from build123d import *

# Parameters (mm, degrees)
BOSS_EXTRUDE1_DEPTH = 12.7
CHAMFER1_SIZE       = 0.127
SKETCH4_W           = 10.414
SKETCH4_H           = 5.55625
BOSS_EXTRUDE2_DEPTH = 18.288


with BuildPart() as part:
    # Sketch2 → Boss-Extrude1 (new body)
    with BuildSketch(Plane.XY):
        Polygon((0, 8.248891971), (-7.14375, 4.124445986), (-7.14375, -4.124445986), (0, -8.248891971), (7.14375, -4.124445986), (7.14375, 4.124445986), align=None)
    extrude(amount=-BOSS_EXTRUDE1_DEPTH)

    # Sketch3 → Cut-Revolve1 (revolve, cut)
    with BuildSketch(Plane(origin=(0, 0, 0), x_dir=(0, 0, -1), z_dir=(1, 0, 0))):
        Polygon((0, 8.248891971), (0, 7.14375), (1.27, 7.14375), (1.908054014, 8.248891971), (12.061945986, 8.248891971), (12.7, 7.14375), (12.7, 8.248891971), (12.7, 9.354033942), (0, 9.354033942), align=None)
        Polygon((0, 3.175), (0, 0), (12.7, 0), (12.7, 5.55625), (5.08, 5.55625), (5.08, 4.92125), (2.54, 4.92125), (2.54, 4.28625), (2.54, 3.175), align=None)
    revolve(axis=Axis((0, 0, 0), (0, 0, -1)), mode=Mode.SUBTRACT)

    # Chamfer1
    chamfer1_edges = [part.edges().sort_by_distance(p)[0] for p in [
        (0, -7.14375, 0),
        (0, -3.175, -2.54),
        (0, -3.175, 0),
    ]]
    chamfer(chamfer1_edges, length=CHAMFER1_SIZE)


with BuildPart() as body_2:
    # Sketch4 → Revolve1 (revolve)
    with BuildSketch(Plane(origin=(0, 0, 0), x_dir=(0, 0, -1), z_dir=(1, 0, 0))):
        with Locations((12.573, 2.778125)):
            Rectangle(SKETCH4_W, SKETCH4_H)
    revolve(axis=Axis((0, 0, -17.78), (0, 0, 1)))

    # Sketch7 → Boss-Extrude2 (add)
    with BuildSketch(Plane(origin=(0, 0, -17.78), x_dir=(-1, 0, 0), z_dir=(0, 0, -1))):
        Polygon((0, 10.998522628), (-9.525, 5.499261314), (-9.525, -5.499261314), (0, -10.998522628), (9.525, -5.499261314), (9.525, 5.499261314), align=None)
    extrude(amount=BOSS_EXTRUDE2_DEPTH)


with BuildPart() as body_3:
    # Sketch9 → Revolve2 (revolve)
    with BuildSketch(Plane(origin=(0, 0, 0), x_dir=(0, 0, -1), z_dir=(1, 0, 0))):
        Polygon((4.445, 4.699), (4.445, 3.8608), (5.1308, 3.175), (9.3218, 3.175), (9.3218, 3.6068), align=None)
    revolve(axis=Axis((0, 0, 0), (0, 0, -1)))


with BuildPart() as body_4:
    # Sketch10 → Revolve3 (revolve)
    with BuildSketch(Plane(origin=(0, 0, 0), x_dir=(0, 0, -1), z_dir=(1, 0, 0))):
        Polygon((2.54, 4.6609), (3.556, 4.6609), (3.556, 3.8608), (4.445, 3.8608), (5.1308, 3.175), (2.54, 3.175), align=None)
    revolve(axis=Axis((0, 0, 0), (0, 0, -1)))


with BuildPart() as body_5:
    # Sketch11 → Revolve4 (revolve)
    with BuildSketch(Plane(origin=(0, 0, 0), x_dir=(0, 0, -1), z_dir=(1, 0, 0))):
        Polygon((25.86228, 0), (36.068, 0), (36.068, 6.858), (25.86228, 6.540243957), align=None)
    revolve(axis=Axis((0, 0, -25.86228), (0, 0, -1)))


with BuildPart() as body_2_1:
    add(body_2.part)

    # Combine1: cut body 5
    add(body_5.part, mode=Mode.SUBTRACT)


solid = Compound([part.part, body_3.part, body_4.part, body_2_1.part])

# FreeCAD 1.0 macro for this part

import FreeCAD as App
import Part
import Sketcher

V = App.Vector
Q = App.Units.Quantity


def edges_at(feature, points):
    """Names of the edges that pass closest to the given points."""
    edges = feature.Shape.Edges
    near = lambda p: min(range(len(edges)), key=lambda i: edges[i].distToShape(Part.Vertex(*p))[0])
    return sorted({f"Edge{near(p) + 1}" for p in points})

doc = App.newDocument("Part")
body = doc.addObject("PartDesign::Body", "Body")

# Sketch on XY plane
sketch1 = body.newObject("Sketcher::SketchObject", "Sketch")
sketch1.AttachmentSupport = (doc.getObject("XY_Plane"), [""])
sketch1.MapMode = "FlatFace"
sketch1.addGeometry([
    Part.LineSegment(V(0, 8.248892, 0), V(-7.14375, 4.124446, 0)),  # 0
    Part.LineSegment(V(-7.14375, 4.124446, 0), V(-7.14375, -4.124446, 0)),  # 1
    Part.LineSegment(V(-7.14375, -4.124446, 0), V(0, -8.248892, 0)),  # 2
    Part.LineSegment(V(0, -8.248892, 0), V(7.14375, -4.124446, 0)),  # 3
    Part.LineSegment(V(7.14375, -4.124446, 0), V(7.14375, 4.124446, 0)),  # 4
    Part.LineSegment(V(7.14375, 4.124446, 0), V(0, 8.248892, 0)),  # 5
], False)
sketch1.addConstraint([
    Sketcher.Constraint("Coincident", 0, 2, 1, 1),
    Sketcher.Constraint("Coincident", 1, 2, 2, 1),
    Sketcher.Constraint("Coincident", 2, 2, 3, 1),
    Sketcher.Constraint("Coincident", 3, 2, 4, 1),
    Sketcher.Constraint("Coincident", 4, 2, 5, 1),
    Sketcher.Constraint("Coincident", 5, 2, 0, 1),
    Sketcher.Constraint("Vertical", 1),
    Sketcher.Constraint("Vertical", 4),
    Sketcher.Constraint("Symmetric", 0, 2, 3, 2, -1, 1),
    Sketcher.Constraint("Symmetric", 2, 2, 5, 2, -1, 1),
    Sketcher.Constraint("PointOnObject", 2, 2, -2),
    Sketcher.Constraint("Parallel", 2, 5),
    Sketcher.Constraint("Horizontal", 1, 2, 3, 2),
    Sketcher.Constraint("Angle", 0, Q("-150 deg")),
    Sketcher.Constraint("DistanceX", 0, 2, -1, 1, Q("0.28125 in")),
    Sketcher.Constraint("DistanceY", 1, 2, 1, 1, Q("8.248892 mm")),
])
pad1 = body.newObject("PartDesign::Pad", "Pad")
pad1.Profile = sketch1
pad1.Length = Q("0.5 in")
pad1.Reversed = True

# Sketch on YZ plane
sketch2 = body.newObject("Sketcher::SketchObject", "Sketch001")
sketch2.AttachmentSupport = (doc.getObject("YZ_Plane"), [""])
sketch2.MapMode = "FlatFace"
sketch2.addGeometry([
    Part.LineSegment(V(7.14375, 0, 0), V(7.14375, -1.27, 0)),  # 0
    Part.LineSegment(V(7.14375, -1.27, 0), V(8.248892, -1.908054, 0)),  # 1
    Part.LineSegment(V(8.248892, -1.908054, 0), V(8.248892, -12.061946, 0)),  # 2
    Part.LineSegment(V(8.248892, -12.061946, 0), V(7.14375, -12.7, 0)),  # 3
    Part.LineSegment(V(7.14375, -12.7, 0), V(9.354034, -12.7, 0)),  # 4
    Part.LineSegment(V(9.354034, -12.7, 0), V(9.354034, 0, 0)),  # 5
    Part.LineSegment(V(9.354034, 0, 0), V(7.14375, 0, 0)),  # 6
    Part.LineSegment(V(3.175, 0, 0), V(0, 0, 0)),  # 7
    Part.LineSegment(V(0, 0, 0), V(0, -12.7, 0)),  # 8
    Part.LineSegment(V(0, -12.7, 0), V(5.55625, -12.7, 0)),  # 9
    Part.LineSegment(V(5.55625, -12.7, 0), V(5.55625, -5.08, 0)),  # 10
    Part.LineSegment(V(5.55625, -5.08, 0), V(4.92125, -5.08, 0)),  # 11
    Part.LineSegment(V(4.92125, -5.08, 0), V(4.92125, -2.54, 0)),  # 12
    Part.LineSegment(V(4.92125, -2.54, 0), V(3.175, -2.54, 0)),  # 13
    Part.LineSegment(V(3.175, -2.54, 0), V(3.175, 0, 0)),  # 14
], False)
sketch2.addConstraint([
    Sketcher.Constraint("Coincident", 0, 2, 1, 1),
    Sketcher.Constraint("Coincident", 1, 2, 2, 1),
    Sketcher.Constraint("Coincident", 2, 2, 3, 1),
    Sketcher.Constraint("Coincident", 3, 2, 4, 1),
    Sketcher.Constraint("Coincident", 4, 2, 5, 1),
    Sketcher.Constraint("Coincident", 5, 2, 6, 1),
    Sketcher.Constraint("Coincident", 6, 2, 0, 1),
    Sketcher.Constraint("Coincident", 7, 2, 8, 1),
    Sketcher.Constraint("Coincident", 8, 2, 9, 1),
    Sketcher.Constraint("Coincident", 9, 2, 10, 1),
    Sketcher.Constraint("Coincident", 10, 2, 11, 1),
    Sketcher.Constraint("Coincident", 11, 2, 12, 1),
    Sketcher.Constraint("Coincident", 12, 2, 13, 1),
    Sketcher.Constraint("Coincident", 13, 2, 14, 1),
    Sketcher.Constraint("Coincident", 14, 2, 7, 1),
    Sketcher.Constraint("Vertical", 0),
    Sketcher.Constraint("Vertical", 2),
    Sketcher.Constraint("Horizontal", 4),
    Sketcher.Constraint("Vertical", 5),
    Sketcher.Constraint("Horizontal", 6),
    Sketcher.Constraint("Horizontal", 7),
    Sketcher.Constraint("Vertical", 8),
    Sketcher.Constraint("Horizontal", 9),
    Sketcher.Constraint("Vertical", 10),
    Sketcher.Constraint("Horizontal", 11),
    Sketcher.Constraint("Vertical", 12),
    Sketcher.Constraint("Horizontal", 13),
    Sketcher.Constraint("Vertical", 14),
    Sketcher.Constraint("Coincident", 7, 2, -1, 1),
    Sketcher.Constraint("PointOnObject", 5, 2, -1),
    Sketcher.Constraint("Horizontal", 4, 2, 8, 2),
    Sketcher.Constraint("Vertical", 0, 2, 3, 2),
    Sketcher.Constraint("Equal", 12, 14),
    Sketcher.Constraint("Equal", 1, 3),
    Sketcher.Constraint("DistanceY", 5, 1, 5, 2, Q("0.5 in")),
    Sketcher.Constraint("DistanceY", 10, 1, 10, 2, Q("0.3 in")),
    Sketcher.Constraint("Angle", 1, Q("-30 deg")),
    Sketcher.Constraint("DistanceY", 0, 2, 0, 1, Q("0.05 in")),
    Sketcher.Constraint("DistanceX", 7, 2, 7, 1, Q("0.125 in")),
    Sketcher.Constraint("DistanceX", 9, 1, 9, 2, Q("0.21875 in")),
    Sketcher.Constraint("DistanceX", 11, 2, 11, 1, Q("0.025 in")),
    Sketcher.Constraint("DistanceX", -1, 1, 0, 2, Q("0.28125 in")),
    Sketcher.Constraint("DistanceY", 2, 2, 2, 1, Q("10.153892 mm")),
    Sketcher.Constraint("DistanceX", 4, 1, 4, 2, Q("2.210284 mm")),
])
groove = body.newObject("PartDesign::Groove", "Groove")
groove.Profile = sketch2
groove.ReferenceAxis = (sketch2, ["V_Axis"])
groove.Angle = 360
doc.recompute()

chamfer = body.newObject("PartDesign::Chamfer", "Chamfer")
chamfer.Base = (groove, edges_at(groove, [(0, -7.144, 0), (0, -3.175, -2.54), (0, -3.175, 0)]))
chamfer.Size = Q("0.005 in")
body2 = doc.addObject("PartDesign::Body", "Body001")

# Sketch on YZ plane
sketch3 = body2.newObject("Sketcher::SketchObject", "Sketch002")
sketch3.AttachmentSupport = (doc.getObject("YZ_Plane001"), [""])
sketch3.MapMode = "FlatFace"
sketch3.addGeometry([
    Part.LineSegment(V(5.55625, -7.366, 0), V(0, -7.366, 0)),
    Part.LineSegment(V(0, -7.366, 0), V(0, -17.78, 0)),
    Part.LineSegment(V(0, -17.78, 0), V(5.55625, -17.78, 0)),
    Part.LineSegment(V(5.55625, -17.78, 0), V(5.55625, -7.366, 0)),
], False)
sketch3.addConstraint([
    Sketcher.Constraint("Coincident", 0, 2, 1, 1),
    Sketcher.Constraint("Coincident", 1, 2, 2, 1),
    Sketcher.Constraint("Coincident", 2, 2, 3, 1),
    Sketcher.Constraint("Coincident", 3, 2, 0, 1),
    Sketcher.Constraint("Horizontal", 0),
    Sketcher.Constraint("Vertical", 1),
    Sketcher.Constraint("Horizontal", 2),
    Sketcher.Constraint("Vertical", 3),
    Sketcher.Constraint("PointOnObject", 0, 2, -2),
    Sketcher.Constraint("DistanceY", 1, 2, 1, 1, Q("0.41 in")),
    Sketcher.Constraint("DistanceY", 1, 2, -1, 1, Q("0.7 in")),
    Sketcher.Constraint("DistanceX", 0, 2, 0, 1, Q("0.21875 in")),
])
revolution = body2.newObject("PartDesign::Revolution", "Revolution")
revolution.Profile = sketch3
revolution.ReferenceAxis = (sketch3, ["V_Axis"])
revolution.Angle = 360

# Sketch on XY plane
sketch4 = body2.newObject("Sketcher::SketchObject", "Sketch003")
sketch4.AttachmentSupport = (doc.getObject("XY_Plane001"), [""])
sketch4.MapMode = "FlatFace"
sketch4.AttachmentOffset = App.Placement(V(0, 0, -0.7 * 25.4), App.Rotation())
sketch4.addGeometry([
    Part.LineSegment(V(0, 10.998523, 0), V(9.525, 5.499261, 0)),  # 0
    Part.LineSegment(V(9.525, 5.499261, 0), V(9.525, -5.499261, 0)),  # 1
    Part.LineSegment(V(9.525, -5.499261, 0), V(0, -10.998523, 0)),  # 2
    Part.LineSegment(V(0, -10.998523, 0), V(-9.525, -5.499261, 0)),  # 3
    Part.LineSegment(V(-9.525, -5.499261, 0), V(-9.525, 5.499261, 0)),  # 4
    Part.LineSegment(V(-9.525, 5.499261, 0), V(0, 10.998523, 0)),  # 5
], False)
sketch4.addConstraint([
    Sketcher.Constraint("Coincident", 0, 2, 1, 1),
    Sketcher.Constraint("Coincident", 1, 2, 2, 1),
    Sketcher.Constraint("Coincident", 2, 2, 3, 1),
    Sketcher.Constraint("Coincident", 3, 2, 4, 1),
    Sketcher.Constraint("Coincident", 4, 2, 5, 1),
    Sketcher.Constraint("Coincident", 5, 2, 0, 1),
    Sketcher.Constraint("Vertical", 1),
    Sketcher.Constraint("Vertical", 4),
    Sketcher.Constraint("Symmetric", 0, 2, 3, 2, -1, 1),
    Sketcher.Constraint("Symmetric", 2, 2, 5, 2, -1, 1),
    Sketcher.Constraint("PointOnObject", 2, 2, -2),
    Sketcher.Constraint("Parallel", 2, 5),
    Sketcher.Constraint("Horizontal", 1, 2, 3, 2),
    Sketcher.Constraint("Angle", 0, Q("-30 deg")),
    Sketcher.Constraint("DistanceX", 3, 2, 1, 2, Q("0.75 in")),
    Sketcher.Constraint("DistanceY", 1, 2, 1, 1, Q("10.998523 mm")),
])
pad2 = body2.newObject("PartDesign::Pad", "Pad001")
pad2.Profile = sketch4
pad2.Length = Q("0.72 in")
pad2.Reversed = True
body3 = doc.addObject("PartDesign::Body", "Body002")

# Sketch on YZ plane
sketch5 = body3.newObject("Sketcher::SketchObject", "Sketch004")
sketch5.AttachmentSupport = (doc.getObject("YZ_Plane002"), [""])
sketch5.MapMode = "FlatFace"
sketch5.addGeometry([
    Part.LineSegment(V(4.699, -4.445, 0), V(3.8608, -4.445, 0)),  # 0
    Part.LineSegment(V(3.8608, -4.445, 0), V(3.175, -5.1308, 0)),  # 1
    Part.LineSegment(V(3.175, -5.1308, 0), V(3.175, -9.3218, 0)),  # 2
    Part.LineSegment(V(3.175, -9.3218, 0), V(3.6068, -9.3218, 0)),  # 3
    Part.LineSegment(V(3.6068, -9.3218, 0), V(4.699, -4.445, 0)),  # 4
], False)
sketch5.addConstraint([
    Sketcher.Constraint("Coincident", 0, 2, 1, 1),
    Sketcher.Constraint("Coincident", 1, 2, 2, 1),
    Sketcher.Constraint("Coincident", 2, 2, 3, 1),
    Sketcher.Constraint("Coincident", 3, 2, 4, 1),
    Sketcher.Constraint("Coincident", 4, 2, 0, 1),
    Sketcher.Constraint("Horizontal", 0),
    Sketcher.Constraint("Vertical", 2),
    Sketcher.Constraint("Horizontal", 3),
    Sketcher.Constraint("Angle", 1, Q("-135 deg")),
    Sketcher.Constraint("DistanceX", 0, 2, 0, 1, Q("0.033 in")),
    Sketcher.Constraint("DistanceX", 3, 1, 3, 2, Q("0.017 in")),
    Sketcher.Constraint("DistanceY", 2, 2, 2, 1, Q("0.165 in")),
    Sketcher.Constraint("DistanceX", 3, 2, 0, 2, Q("0.01 in")),
    Sketcher.Constraint("DistanceX", -1, 1, 0, 2, Q("0.152 in")),
    Sketcher.Constraint("DistanceY", 0, 2, -1, 1, Q("0.175 in")),
])
revolution2 = body3.newObject("PartDesign::Revolution", "Revolution001")
revolution2.Profile = sketch5
revolution2.ReferenceAxis = (sketch5, ["V_Axis"])
revolution2.Angle = 360
body4 = doc.addObject("PartDesign::Body", "Body003")

# Sketch on YZ plane
sketch6 = body4.newObject("Sketcher::SketchObject", "Sketch005")
sketch6.AttachmentSupport = (doc.getObject("YZ_Plane003"), [""])
sketch6.MapMode = "FlatFace"
sketch6.addGeometry([
    Part.LineSegment(V(4.6609, -3.556, 0), V(4.6609, -2.54, 0)),  # 0
    Part.LineSegment(V(4.6609, -2.54, 0), V(3.175, -2.54, 0)),  # 1
    Part.LineSegment(V(3.175, -2.54, 0), V(3.175, -5.1308, 0)),  # 2
    Part.LineSegment(V(3.175, -5.1308, 0), V(3.8608, -4.445, 0)),  # 3
    Part.LineSegment(V(3.8608, -4.445, 0), V(3.8608, -3.556, 0)),  # 4
    Part.LineSegment(V(3.8608, -3.556, 0), V(4.6609, -3.556, 0)),  # 5
], False)
sketch6.addConstraint([
    Sketcher.Constraint("Coincident", 0, 2, 1, 1),
    Sketcher.Constraint("Coincident", 1, 2, 2, 1),
    Sketcher.Constraint("Coincident", 2, 2, 3, 1),
    Sketcher.Constraint("Coincident", 3, 2, 4, 1),
    Sketcher.Constraint("Coincident", 4, 2, 5, 1),
    Sketcher.Constraint("Coincident", 5, 2, 0, 1),
    Sketcher.Constraint("Vertical", 0),
    Sketcher.Constraint("Horizontal", 1),
    Sketcher.Constraint("Vertical", 2),
    Sketcher.Constraint("Vertical", 4),
    Sketcher.Constraint("Horizontal", 5),
    Sketcher.Constraint("Angle", 3, Q("45 deg")),
    Sketcher.Constraint("DistanceY", 0, 1, 0, 2, Q("0.04 in")),
    Sketcher.Constraint("DistanceY", 0, 2, -1, 1, Q("0.1 in")),
    Sketcher.Constraint("DistanceY", 2, 2, 2, 1, Q("0.102 in")),
    Sketcher.Constraint("DistanceY", 4, 1, 4, 2, Q("0.035 in")),
    Sketcher.Constraint("DistanceX", 1, 2, 1, 1, Q("0.0585 in")),
    Sketcher.Constraint("DistanceX", -1, 1, 1, 2, Q("0.125 in")),
])
revolution3 = body4.newObject("PartDesign::Revolution", "Revolution002")
revolution3.Profile = sketch6
revolution3.ReferenceAxis = (sketch6, ["V_Axis"])
revolution3.Angle = 360
body5 = doc.addObject("PartDesign::Body", "Body004")

# Sketch on YZ plane
sketch7 = body5.newObject("Sketcher::SketchObject", "Sketch006")
sketch7.AttachmentSupport = (doc.getObject("YZ_Plane004"), [""])
sketch7.MapMode = "FlatFace"
sketch7.addGeometry([
    Part.LineSegment(V(0, -25.86228, 0), V(0, -36.068, 0)),
    Part.LineSegment(V(0, -36.068, 0), V(6.858, -36.068, 0)),
    Part.LineSegment(V(6.858, -36.068, 0), V(6.540244, -25.86228, 0)),
    Part.LineSegment(V(6.540244, -25.86228, 0), V(0, -25.86228, 0)),
], False)
sketch7.addConstraint([
    Sketcher.Constraint("Coincident", 0, 2, 1, 1),
    Sketcher.Constraint("Coincident", 1, 2, 2, 1),
    Sketcher.Constraint("Coincident", 2, 2, 3, 1),
    Sketcher.Constraint("Coincident", 3, 2, 0, 1),
    Sketcher.Constraint("Vertical", 0),
    Sketcher.Constraint("Horizontal", 1),
    Sketcher.Constraint("Horizontal", 3),
    Sketcher.Constraint("PointOnObject", 0, 2, -2),
    Sketcher.Constraint("DistanceX", 1, 1, 1, 2, Q("0.27 in")),
    Sketcher.Constraint("DistanceY", 0, 2, -1, 1, Q("1.42 in")),
    Sketcher.Constraint("DistanceY", 0, 2, 0, 1, Q("0.4018 in")),
    Sketcher.Constraint("DistanceX", 3, 2, 3, 1, Q("6.540244 mm")),
])
revolution4 = body5.newObject("PartDesign::Revolution", "Revolution003")
revolution4.Profile = sketch7
revolution4.ReferenceAxis = (sketch7, ["V_Axis"])
revolution4.Angle = 360
doc.recompute()

boolean = body2.newObject("PartDesign::Boolean", "Boolean")
boolean.Type = "Cut"
boolean.addObjects([body5])

doc.recompute()
